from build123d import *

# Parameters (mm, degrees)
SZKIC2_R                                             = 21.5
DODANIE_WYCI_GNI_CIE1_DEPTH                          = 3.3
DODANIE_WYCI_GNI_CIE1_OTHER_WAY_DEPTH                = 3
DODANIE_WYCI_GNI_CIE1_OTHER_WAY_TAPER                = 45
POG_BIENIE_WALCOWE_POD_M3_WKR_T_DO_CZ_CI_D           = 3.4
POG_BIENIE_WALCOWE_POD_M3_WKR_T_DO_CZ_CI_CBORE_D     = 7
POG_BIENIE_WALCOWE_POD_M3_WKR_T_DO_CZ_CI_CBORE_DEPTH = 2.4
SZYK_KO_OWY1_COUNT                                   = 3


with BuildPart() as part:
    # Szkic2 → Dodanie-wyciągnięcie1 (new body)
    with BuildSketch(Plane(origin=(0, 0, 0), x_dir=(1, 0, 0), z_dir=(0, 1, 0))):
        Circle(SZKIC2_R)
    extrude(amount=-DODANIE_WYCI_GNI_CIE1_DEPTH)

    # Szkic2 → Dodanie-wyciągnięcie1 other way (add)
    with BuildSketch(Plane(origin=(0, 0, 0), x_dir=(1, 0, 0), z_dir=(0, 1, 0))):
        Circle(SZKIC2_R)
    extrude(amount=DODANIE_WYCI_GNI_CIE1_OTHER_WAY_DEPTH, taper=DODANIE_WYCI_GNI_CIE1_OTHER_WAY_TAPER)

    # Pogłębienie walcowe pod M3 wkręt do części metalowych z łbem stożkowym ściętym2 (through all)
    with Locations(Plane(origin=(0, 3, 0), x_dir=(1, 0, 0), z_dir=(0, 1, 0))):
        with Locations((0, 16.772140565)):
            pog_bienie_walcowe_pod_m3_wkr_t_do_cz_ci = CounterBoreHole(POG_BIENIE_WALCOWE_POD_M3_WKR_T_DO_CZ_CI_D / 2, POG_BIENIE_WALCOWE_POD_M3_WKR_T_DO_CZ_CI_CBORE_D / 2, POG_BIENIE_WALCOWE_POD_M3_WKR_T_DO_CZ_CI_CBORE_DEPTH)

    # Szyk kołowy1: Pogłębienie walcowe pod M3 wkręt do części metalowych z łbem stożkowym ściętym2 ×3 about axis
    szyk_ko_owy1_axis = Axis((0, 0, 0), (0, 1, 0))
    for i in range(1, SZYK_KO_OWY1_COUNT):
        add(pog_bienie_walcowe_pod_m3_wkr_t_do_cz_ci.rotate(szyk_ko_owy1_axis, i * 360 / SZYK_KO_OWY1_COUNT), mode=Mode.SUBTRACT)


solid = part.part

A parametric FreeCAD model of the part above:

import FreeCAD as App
import Part
import Sketcher

V = App.Vector

doc = App.newDocument("Part")
params = doc.addObject("Spreadsheet::Sheet", "Params")
for row, (alias, value) in enumerate([
    ("sketch1_diameter", "43 mm"),
    ("pad1_length", "3.3 mm"),
    ("sketch2_diameter", "43 mm"),
    ("pad2_length", "3 mm"),
    ("pad2_taper", "-45 deg"),
    ("sketch3_diameter", "3.4 mm"),
    ("hole_diameter", "3.4 mm"),
    ("hole_cbore_diameter", "7 mm"),
    ("hole_cbore_depth", "2.4 mm"),
], start=1):
    params.set(f"A{row}", alias)
    params.set(f"B{row}", "=" + value)
    params.setAlias(f"B{row}", alias)

body = doc.addObject("PartDesign::Body", "Body")

# Sketch on XZ plane
sketch1 = body.newObject("Sketcher::SketchObject", "Sketch")
sketch1.AttachmentSupport = (doc.getObject("XZ_Plane"), [""])
sketch1.MapMode = "FlatFace"
sketch1.addGeometry(Part.Circle(V(0, 0, 0), V(0, 0, 1), 22), False)
sketch1.addConstraint([
    Sketcher.Constraint("Coincident", 0, 3, -1, 1),
    Sketcher.Constraint("Diameter", 0, 43.0),
])
sketch1.setExpression("Constraints[1]", "Params.sketch1_diameter")
pad1 = body.newObject("PartDesign::Pad", "Pad")
pad1.Profile = sketch1
pad1.setExpression("Length", "Params.pad1_length")

# Sketch on XZ plane
sketch2 = body.newObject("Sketcher::SketchObject", "Sketch001")
sketch2.AttachmentSupport = (doc.getObject("XZ_Plane"), [""])
sketch2.MapMode = "FlatFace"
sketch2.addGeometry(Part.Circle(V(0, 0, 0), V(0, 0, 1), 22), False)
sketch2.addConstraint([
    Sketcher.Constraint("Coincident", 0, 3, -1, 1),
    Sketcher.Constraint("Diameter", 0, 43.0),
])
sketch2.setExpression("Constraints[1]", "Params.sketch2_diameter")
pad2 = body.newObject("PartDesign::Pad", "Pad001")
pad2.Profile = sketch2
pad2.setExpression("Length", "Params.pad2_length")
pad2.Reversed = True
pad2.setExpression("TaperAngle", "Params.pad2_taper")

# Sketch on XZ plane
sketch3 = body.newObject("Sketcher::SketchObject", "Sketch002")
sketch3.AttachmentSupport = (doc.getObject("XZ_Plane"), [""])
sketch3.MapMode = "FlatFace"
sketch3.AttachmentOffset = App.Placement(V(0, 0, -3), App.Rotation())
sketch3.addGeometry(Part.Circle(V(0, -16.8, 0), V(0, 0, 1), 1.7), False)
sketch3.addConstraint([
    Sketcher.Constraint("PointOnObject", 0, 3, -2),
    Sketcher.Constraint("Diameter", 0, 3.4),
    Sketcher.Constraint("DistanceY", 0, 3, -1, 1, 16.772141),
])
sketch3.setExpression("Constraints[1]", "Params.sketch3_diameter")
doc.recompute()
hole = body.newObject("PartDesign::Hole", "Hole")
hole.Profile = sketch3
hole.ThreadType = "None"
hole.setExpression("Diameter", "Params.hole_diameter")
hole.DepthType = "ThroughAll"
hole.HoleCutType = "Counterbore"
hole.setExpression("HoleCutDiameter", "Params.hole_cbore_diameter")
hole.setExpression("HoleCutDepth", "Params.hole_cbore_depth")
hole.Reversed = True
doc.recompute()

polarpattern = body.newObject("PartDesign::PolarPattern", "PolarPattern")
polarpattern.Originals = [hole]
polarpattern.Axis = (doc.getObject("Y_Axis"), [""])
polarpattern.Angle = 360
polarpattern.Occurrences = 3
body.Tip = polarpattern

doc.recompute()
